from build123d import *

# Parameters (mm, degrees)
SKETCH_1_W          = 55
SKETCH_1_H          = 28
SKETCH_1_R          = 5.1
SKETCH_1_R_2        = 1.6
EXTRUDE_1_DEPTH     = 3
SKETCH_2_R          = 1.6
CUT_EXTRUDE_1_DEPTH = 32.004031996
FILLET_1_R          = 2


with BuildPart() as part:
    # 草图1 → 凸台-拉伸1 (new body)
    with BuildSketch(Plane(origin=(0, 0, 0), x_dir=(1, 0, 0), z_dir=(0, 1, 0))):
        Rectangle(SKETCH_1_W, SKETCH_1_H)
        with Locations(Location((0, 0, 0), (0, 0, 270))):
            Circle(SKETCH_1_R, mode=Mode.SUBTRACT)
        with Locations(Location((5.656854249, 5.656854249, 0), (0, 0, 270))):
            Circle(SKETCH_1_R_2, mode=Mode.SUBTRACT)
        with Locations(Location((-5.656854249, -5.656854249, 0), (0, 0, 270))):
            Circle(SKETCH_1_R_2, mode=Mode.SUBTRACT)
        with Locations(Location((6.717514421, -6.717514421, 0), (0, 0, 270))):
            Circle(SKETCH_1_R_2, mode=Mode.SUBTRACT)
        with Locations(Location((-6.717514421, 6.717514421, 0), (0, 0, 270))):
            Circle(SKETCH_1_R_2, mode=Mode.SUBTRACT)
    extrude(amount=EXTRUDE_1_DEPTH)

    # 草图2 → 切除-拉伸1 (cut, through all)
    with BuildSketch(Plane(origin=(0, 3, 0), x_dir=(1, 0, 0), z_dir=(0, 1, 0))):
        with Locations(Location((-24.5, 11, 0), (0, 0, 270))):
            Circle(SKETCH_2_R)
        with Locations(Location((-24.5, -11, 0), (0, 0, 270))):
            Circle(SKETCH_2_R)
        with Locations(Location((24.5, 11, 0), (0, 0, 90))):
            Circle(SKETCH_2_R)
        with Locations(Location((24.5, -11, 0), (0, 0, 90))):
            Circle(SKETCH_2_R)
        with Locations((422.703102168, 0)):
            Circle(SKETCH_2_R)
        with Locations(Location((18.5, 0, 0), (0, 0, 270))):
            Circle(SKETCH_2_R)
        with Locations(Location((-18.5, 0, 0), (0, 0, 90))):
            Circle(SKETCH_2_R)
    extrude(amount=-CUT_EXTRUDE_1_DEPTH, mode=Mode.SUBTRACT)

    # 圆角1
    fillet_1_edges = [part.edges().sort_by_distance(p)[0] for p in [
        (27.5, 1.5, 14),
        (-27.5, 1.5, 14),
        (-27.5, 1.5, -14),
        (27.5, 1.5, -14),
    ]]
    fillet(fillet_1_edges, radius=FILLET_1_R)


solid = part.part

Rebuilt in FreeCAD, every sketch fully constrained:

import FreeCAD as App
import Part
import Sketcher
Q = App.Units.Quantity


def edges_at(feature, points):
    """Names of the edges that pass closest to the given points."""
    edges = feature.Shape.Edges
    near = lambda p: min(range(len(edges)), key=lambda i: edges[i].distToShape(Part.Vertex(*p))[0])
    return sorted({f"Edge{near(p) + 1}" for p in points})

doc = App.newDocument("Part")
body = doc.addObject("PartDesign::Body", "Body")

sketch1 = doc.addObject("Sketcher::SketchObject", "Sketch")
body.addObject(sketch1)
sketch1.AttachmentSupport = (doc.XZ_Plane, [""])
sketch1.MapMode = "FlatFace"
sketch1.addGeometry(Part.LineSegment(App.Vector(-27.5, -14, 0), App.Vector(-27.5, 14, 0)), False)
sketch1.addGeometry(Part.LineSegment(App.Vector(-27.5, 14, 0), App.Vector(27.5, 14, 0)), False)
sketch1.addGeometry(Part.LineSegment(App.Vector(27.5, 14, 0), App.Vector(27.5, -14, 0)), False)
sketch1.addGeometry(Part.LineSegment(App.Vector(27.5, -14, 0), App.Vector(-27.5, -14, 0)), False)
sketch1.addGeometry(Part.Circle(App.Vector(-5.656854, 5.656854, 0), App.Vector(0, 0, 1), 1.6), False)
sketch1.addGeometry(Part.Circle(App.Vector(6.717514, 6.717514, 0), App.Vector(0, 0, 1), 1.6), False)
sketch1.addGeometry(Part.Circle(App.Vector(-6.717514, -6.717514, 0), App.Vector(0, 0, 1), 1.6), False)
sketch1.addGeometry(Part.Circle(App.Vector(0, 0, 0), App.Vector(0, 0, 1), 5.1), False)
sketch1.addGeometry(Part.Circle(App.Vector(5.656854, -5.656854, 0), App.Vector(0, 0, 1), 1.6), False)
sketch1.addConstraint(Sketcher.Constraint("Coincident", 0, 2, 1, 1))
sketch1.addConstraint(Sketcher.Constraint("Coincident", 1, 2, 2, 1))
sketch1.addConstraint(Sketcher.Constraint("Coincident", 2, 2, 3, 1))
sketch1.addConstraint(Sketcher.Constraint("Coincident", 3, 2, 0, 1))
sketch1.addConstraint(Sketcher.Constraint("Vertical", 0))
sketch1.addConstraint(Sketcher.Constraint("Horizontal", 1))
sketch1.addConstraint(Sketcher.Constraint("Vertical", 2))
sketch1.addConstraint(Sketcher.Constraint("Horizontal", 3))
sketch1.addConstraint(Sketcher.Constraint("Coincident", 7, 3, -1, 1))
sketch1.addConstraint(Sketcher.Constraint("Equal", 4, 5))
sketch1.addConstraint(Sketcher.Constraint("Equal", 5, 6))
sketch1.addConstraint(Sketcher.Constraint("Equal", 6, 8))
sketch1.addConstraint(Sketcher.Constraint("Symmetric", 5, 3, 6, 3, -1, 1))
sketch1.addConstraint(Sketcher.Constraint("Symmetric", 4, 3, 8, 3, -1, 1))
sketch1.addConstraint(Sketcher.Constraint("Symmetric", 0, 2, 2, 2, -1, 1))
sketch1.addConstraint(Sketcher.Constraint("Diameter", 4, Q("3.2 mm")))
sketch1.addConstraint(Sketcher.Constraint("Diameter", 7, Q("10.2 mm")))
sketch1.addConstraint(Sketcher.Constraint("DistanceX", 1, 1, 1, 2, Q("55 mm")))
sketch1.addConstraint(Sketcher.Constraint("DistanceY", 0, 1, 0, 2, Q("28 mm")))
sketch1.addConstraint(Sketcher.Constraint("DistanceX", 4, 3, 5, 3, Q("12.374369 mm")))
sketch1.addConstraint(Sketcher.Constraint("DistanceY", 4, 3, 5, 3, Q("1.06066 mm")))
sketch1.addConstraint(Sketcher.Constraint("DistanceX", 6, 3, 4, 3, Q("1.06066 mm")))
sketch1.addConstraint(Sketcher.Constraint("DistanceY", 6, 3, 4, 3, Q("12.374369 mm")))
pad1 = doc.addObject("PartDesign::Pad", "Pad")
body.addObject(pad1)
pad1.Profile = sketch1
pad1.Length = 3
pad1.Reversed = True

sketch2 = doc.addObject("Sketcher::SketchObject", "Sketch001")
body.addObject(sketch2)
sketch2.AttachmentSupport = (doc.XZ_Plane, [""])
sketch2.MapMode = "FlatFace"
sketch2.AttachmentOffset = App.Placement(App.Vector(0, 0, -3), App.Rotation())
sketch2.addGeometry(Part.Circle(App.Vector(-24.5, -11, 0), App.Vector(0, 0, 1), 1.6), False)
sketch2.addGeometry(Part.Circle(App.Vector(-24.5, 11, 0), App.Vector(0, 0, 1), 1.6), False)
sketch2.addGeometry(Part.Circle(App.Vector(24.5, -11, 0), App.Vector(0, 0, 1), 1.6), False)
sketch2.addGeometry(Part.Circle(App.Vector(24.5, 11, 0), App.Vector(0, 0, 1), 1.6), False)
sketch2.addGeometry(Part.Circle(App.Vector(422.703102, 0, 0), App.Vector(0, 0, 1), 1.6), False)
sketch2.addGeometry(Part.Circle(App.Vector(18.5, 0, 0), App.Vector(0, 0, 1), 1.6), False)
sketch2.addGeometry(Part.Circle(App.Vector(-18.5, 0, 0), App.Vector(0, 0, 1), 1.6), False)
sketch2.addConstraint(Sketcher.Constraint("Equal", 0, 1))
sketch2.addConstraint(Sketcher.Constraint("Equal", 1, 2))
sketch2.addConstraint(Sketcher.Constraint("Equal", 2, 3))
sketch2.addConstraint(Sketcher.Constraint("Equal", 3, 4))
sketch2.addConstraint(Sketcher.Constraint("Equal", 4, 5))
sketch2.addConstraint(Sketcher.Constraint("Equal", 5, 6))
sketch2.addConstraint(Sketcher.Constraint("Symmetric", 1, 3, 2, 3, -1, 1))
sketch2.addConstraint(Sketcher.Constraint("Symmetric", 0, 3, 3, 3, -1, 1))
sketch2.addConstraint(Sketcher.Constraint("Symmetric", 5, 3, 6, 3, -1, 1))
sketch2.addConstraint(Sketcher.Constraint("Symmetric", 0, 3, 2, 3, -2))
sketch2.addConstraint(Sketcher.Constraint("PointOnObject", 4, 3, -1))
sketch2.addConstraint(Sketcher.Constraint("PointOnObject", 5, 3, -1))
sketch2.addConstraint(Sketcher.Constraint("Diameter", 0, Q("3.2 mm")))
sketch2.addConstraint(Sketcher.Constraint("DistanceY", 0, 3, -1, 1, Q("11 mm")))
sketch2.addConstraint(Sketcher.Constraint("DistanceX", 0, 3, 2, 3, Q("49 mm")))
sketch2.addConstraint(Sketcher.Constraint("DistanceX", 5, 3, 2, 3, Q("6 mm")))
sketch2.addConstraint(Sketcher.Constraint("DistanceX", -1, 1, 4, 3, Q("422.703102 mm")))
pocket1 = doc.addObject("PartDesign::Pocket", "Pocket")
body.addObject(pocket1)
pocket1.Profile = sketch2
pocket1.Type = "ThroughAll"
pocket1.Reversed = True
doc.recompute()

fillet = doc.addObject("PartDesign::Fillet", "Fillet")
body.addObject(fillet)
fillet.Base = (pocket1, edges_at(pocket1, [
    (27.5, 1.5, 14),
    (-27.5, 1.5, 14),
    (-27.5, 1.5, -14),
    (27.5, 1.5, -14),
]))
fillet.Radius = 2

doc.recompute()
